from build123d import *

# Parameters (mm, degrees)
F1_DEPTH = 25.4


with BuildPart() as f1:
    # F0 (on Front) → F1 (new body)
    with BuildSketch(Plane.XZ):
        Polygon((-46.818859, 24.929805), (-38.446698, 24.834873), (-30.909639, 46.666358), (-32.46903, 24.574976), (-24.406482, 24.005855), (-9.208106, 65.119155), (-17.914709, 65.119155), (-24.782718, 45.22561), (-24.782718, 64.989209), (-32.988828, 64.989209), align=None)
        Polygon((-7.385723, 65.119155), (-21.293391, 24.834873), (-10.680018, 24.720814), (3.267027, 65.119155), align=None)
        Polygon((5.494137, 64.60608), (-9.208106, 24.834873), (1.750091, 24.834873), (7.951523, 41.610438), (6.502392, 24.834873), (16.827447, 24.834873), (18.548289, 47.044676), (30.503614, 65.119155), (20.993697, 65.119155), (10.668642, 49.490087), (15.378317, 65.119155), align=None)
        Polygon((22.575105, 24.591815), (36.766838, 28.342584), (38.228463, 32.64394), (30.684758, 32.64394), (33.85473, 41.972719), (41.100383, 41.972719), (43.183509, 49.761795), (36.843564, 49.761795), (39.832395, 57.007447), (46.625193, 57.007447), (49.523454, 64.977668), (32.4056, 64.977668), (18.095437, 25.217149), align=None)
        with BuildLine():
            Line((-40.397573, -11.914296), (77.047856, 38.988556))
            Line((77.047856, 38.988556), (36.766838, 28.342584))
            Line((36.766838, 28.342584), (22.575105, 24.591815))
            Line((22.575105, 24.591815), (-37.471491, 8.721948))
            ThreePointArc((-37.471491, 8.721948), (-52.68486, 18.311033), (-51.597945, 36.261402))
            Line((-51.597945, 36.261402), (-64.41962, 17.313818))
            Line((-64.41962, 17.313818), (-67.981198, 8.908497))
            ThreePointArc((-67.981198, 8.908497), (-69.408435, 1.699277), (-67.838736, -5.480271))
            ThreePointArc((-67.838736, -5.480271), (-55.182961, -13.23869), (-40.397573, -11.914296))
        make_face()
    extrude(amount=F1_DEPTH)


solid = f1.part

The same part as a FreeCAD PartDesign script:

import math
import FreeCAD as App
import Part
import Sketcher
Q = App.Units.Quantity

doc = App.newDocument("Part")
params = doc.addObject("Spreadsheet::Sheet", "Params")
for row, (alias, value) in enumerate([
    ("sketch1_radius", "0.695 in"),
    ("pad1_length", "1 in"),
], start=1):
    params.set(f"A{row}", alias)
    params.set(f"B{row}", "=" + value)
    params.setAlias(f"B{row}", alias)

body = doc.addObject("PartDesign::Body", "Body")
body.AllowCompound = True

sketch1 = body.newObject("Sketcher::SketchObject", "Sketch")
sketch1.AttachmentSupport = (doc.getObject("XZ_Plane"), [""])
sketch1.MapMode = "FlatFace"
sketch1.addGeometry(Part.LineSegment(App.Vector(-46.8, 24.9, 0), App.Vector(-38.4, 24.8, 0)), False)
sketch1.addGeometry(Part.LineSegment(App.Vector(-38.4, 24.8, 0), App.Vector(-30.9, 46.7, 0)), False)
sketch1.addGeometry(Part.LineSegment(App.Vector(-30.9, 46.7, 0), App.Vector(-32.5, 24.6, 0)), False)
sketch1.addGeometry(Part.LineSegment(App.Vector(-32.5, 24.6, 0), App.Vector(-24.4, 24, 0)), False)
sketch1.addGeometry(Part.LineSegment(App.Vector(-24.4, 24, 0), App.Vector(-9.2, 65.1, 0)), False)
sketch1.addGeometry(Part.LineSegment(App.Vector(-9.2, 65.1, 0), App.Vector(-17.9, 65.1, 0)), False)
sketch1.addGeometry(Part.LineSegment(App.Vector(-17.9, 65.1, 0), App.Vector(-24.8, 45.2, 0)), False)
sketch1.addGeometry(Part.LineSegment(App.Vector(-24.8, 45.2, 0), App.Vector(-24.8, 65, 0)), False)
sketch1.addGeometry(Part.LineSegment(App.Vector(-24.8, 65, 0), App.Vector(-33, 65, 0)), False)
sketch1.addGeometry(Part.LineSegment(App.Vector(-33, 65, 0), App.Vector(-46.8, 24.9, 0)), False)
sketch1.addGeometry(Part.LineSegment(App.Vector(-7.4, 65.1, 0), App.Vector(-21.3, 24.8, 0)), False)
sketch1.addGeometry(Part.LineSegment(App.Vector(-21.3, 24.8, 0), App.Vector(-10.7, 24.7, 0)), False)
sketch1.addGeometry(Part.LineSegment(App.Vector(-10.7, 24.7, 0), App.Vector(3.3, 65.1, 0)), False)
sketch1.addGeometry(Part.LineSegment(App.Vector(3.3, 65.1, 0), App.Vector(-7.4, 65.1, 0)), False)
sketch1.addGeometry(Part.LineSegment(App.Vector(5.5, 64.6, 0), App.Vector(-9.2, 24.8, 0)), False)
sketch1.addGeometry(Part.LineSegment(App.Vector(-9.2, 24.8, 0), App.Vector(1.8, 24.8, 0)), False)
sketch1.addGeometry(Part.LineSegment(App.Vector(1.8, 24.8, 0), App.Vector(8, 41.6, 0)), False)
sketch1.addGeometry(Part.LineSegment(App.Vector(8, 41.6, 0), App.Vector(6.5, 24.8, 0)), False)
sketch1.addGeometry(Part.LineSegment(App.Vector(6.5, 24.8, 0), App.Vector(16.8, 24.8, 0)), False)
sketch1.addGeometry(Part.LineSegment(App.Vector(16.8, 24.8, 0), App.Vector(18.5, 47, 0)), False)
sketch1.addGeometry(Part.LineSegment(App.Vector(18.5, 47, 0), App.Vector(30.5, 65.1, 0)), False)
sketch1.addGeometry(Part.LineSegment(App.Vector(30.5, 65.1, 0), App.Vector(21, 65.1, 0)), False)
sketch1.addGeometry(Part.LineSegment(App.Vector(21, 65.1, 0), App.Vector(10.7, 49.5, 0)), False)
sketch1.addGeometry(Part.LineSegment(App.Vector(10.7, 49.5, 0), App.Vector(15.4, 65.1, 0)), False)
sketch1.addGeometry(Part.LineSegment(App.Vector(15.4, 65.1, 0), App.Vector(5.5, 64.6, 0)), False)
sketch1.addGeometry(Part.LineSegment(App.Vector(36.8, 28.3, 0), App.Vector(38.2, 32.6, 0)), False)
sketch1.addGeometry(Part.LineSegment(App.Vector(38.2, 32.6, 0), App.Vector(30.7, 32.6, 0)), False)
sketch1.addGeometry(Part.LineSegment(App.Vector(30.7, 32.6, 0), App.Vector(33.9, 42, 0)), False)
sketch1.addGeometry(Part.LineSegment(App.Vector(33.9, 42, 0), App.Vector(41.1, 42, 0)), False)
sketch1.addGeometry(Part.LineSegment(App.Vector(41.1, 42, 0), App.Vector(43.2, 49.8, 0)), False)
sketch1.addGeometry(Part.LineSegment(App.Vector(43.2, 49.8, 0), App.Vector(36.8, 49.8, 0)), False)
sketch1.addGeometry(Part.LineSegment(App.Vector(36.8, 49.8, 0), App.Vector(39.8, 57, 0)), False)
sketch1.addGeometry(Part.LineSegment(App.Vector(39.8, 57, 0), App.Vector(46.6, 57, 0)), False)
sketch1.addGeometry(Part.LineSegment(App.Vector(46.6, 57, 0), App.Vector(49.5, 65, 0)), False)
sketch1.addGeometry(Part.LineSegment(App.Vector(49.5, 65, 0), App.Vector(32.4, 65, 0)), False)
sketch1.addGeometry(Part.LineSegment(App.Vector(32.4, 65, 0), App.Vector(18.1, 25.2, 0)), False)
sketch1.addGeometry(Part.LineSegment(App.Vector(18.1, 25.2, 0), App.Vector(22.6, 24.6, 0)), False)
sketch1.addGeometry(Part.LineSegment(App.Vector(22.6, 24.6, 0), App.Vector(-37.5, 8.7, 0)), False)
sketch1.addGeometry(Part.ArcOfCircle(Part.Circle(App.Vector(-37, 26.4, 0), App.Vector(0, 0, 1), 17.7), math.radians(146), math.radians(268)), False)
sketch1.addGeometry(Part.LineSegment(App.Vector(-51.6, 36.3, 0), App.Vector(-64.4, 17.3, 0)), False)
sketch1.addGeometry(Part.LineSegment(App.Vector(-64.4, 17.3, 0), App.Vector(-68, 8.9, 0)), False)
sketch1.addGeometry(Part.ArcOfCircle(Part.Circle(App.Vector(-51.4, 1.9, 0), App.Vector(0, 0, 1), 18), math.radians(157), math.radians(204)), False)
sketch1.addGeometry(Part.ArcOfCircle(Part.Circle(App.Vector(-49.8, 9.8, 0), App.Vector(0, 0, 1), 23.6), math.radians(-140), math.radians(-67)), False)
sketch1.addGeometry(Part.LineSegment(App.Vector(-40.4, -11.9, 0), App.Vector(77, 39, 0)), False)
sketch1.addGeometry(Part.LineSegment(App.Vector(77, 39, 0), App.Vector(36.8, 28.3, 0)), False)
sketch1.addConstraint(Sketcher.Constraint("Coincident", 0, 2, 1, 1))
sketch1.addConstraint(Sketcher.Constraint("Coincident", 1, 2, 2, 1))
sketch1.addConstraint(Sketcher.Constraint("Coincident", 2, 2, 3, 1))
sketch1.addConstraint(Sketcher.Constraint("Coincident", 3, 2, 4, 1))
sketch1.addConstraint(Sketcher.Constraint("Coincident", 4, 2, 5, 1))
sketch1.addConstraint(Sketcher.Constraint("Coincident", 5, 2, 6, 1))
sketch1.addConstraint(Sketcher.Constraint("Coincident", 6, 2, 7, 1))
sketch1.addConstraint(Sketcher.Constraint("Coincident", 7, 2, 8, 1))
sketch1.addConstraint(Sketcher.Constraint("Coincident", 8, 2, 9, 1))
sketch1.addConstraint(Sketcher.Constraint("Coincident", 9, 2, 0, 1))
sketch1.addConstraint(Sketcher.Constraint("Coincident", 10, 2, 11, 1))
sketch1.addConstraint(Sketcher.Constraint("Coincident", 11, 2, 12, 1))
sketch1.addConstraint(Sketcher.Constraint("Coincident", 12, 2, 13, 1))
sketch1.addConstraint(Sketcher.Constraint("Coincident", 13, 2, 10, 1))
sketch1.addConstraint(Sketcher.Constraint("Coincident", 14, 2, 15, 1))
sketch1.addConstraint(Sketcher.Constraint("Coincident", 15, 2, 16, 1))
sketch1.addConstraint(Sketcher.Constraint("Coincident", 16, 2, 17, 1))
sketch1.addConstraint(Sketcher.Constraint("Coincident", 17, 2, 18, 1))
sketch1.addConstraint(Sketcher.Constraint("Coincident", 18, 2, 19, 1))
sketch1.addConstraint(Sketcher.Constraint("Coincident", 19, 2, 20, 1))
sketch1.addConstraint(Sketcher.Constraint("Coincident", 20, 2, 21, 1))
sketch1.addConstraint(Sketcher.Constraint("Coincident", 21, 2, 22, 1))
sketch1.addConstraint(Sketcher.Constraint("Coincident", 22, 2, 23, 1))
sketch1.addConstraint(Sketcher.Constraint("Coincident", 23, 2, 24, 1))
sketch1.addConstraint(Sketcher.Constraint("Coincident", 24, 2, 14, 1))
sketch1.addConstraint(Sketcher.Constraint("Coincident", 25, 2, 26, 1))
sketch1.addConstraint(Sketcher.Constraint("Coincident", 26, 2, 27, 1))
sketch1.addConstraint(Sketcher.Constraint("Coincident", 27, 2, 28, 1))
sketch1.addConstraint(Sketcher.Constraint("Coincident", 28, 2, 29, 1))
sketch1.addConstraint(Sketcher.Constraint("Coincident", 29, 2, 30, 1))
sketch1.addConstraint(Sketcher.Constraint("Coincident", 30, 2, 31, 1))
sketch1.addConstraint(Sketcher.Constraint("Coincident", 31, 2, 32, 1))
sketch1.addConstraint(Sketcher.Constraint("Coincident", 32, 2, 33, 1))
sketch1.addConstraint(Sketcher.Constraint("Coincident", 33, 2, 34, 1))
sketch1.addConstraint(Sketcher.Constraint("Coincident", 34, 2, 35, 1))
sketch1.addConstraint(Sketcher.Constraint("Coincident", 35, 2, 36, 1))
sketch1.addConstraint(Sketcher.Constraint("Coincident", 36, 2, 37, 1))
sketch1.addConstraint(Sketcher.Constraint("Coincident", 37, 2, 38, 2))
sketch1.addConstraint(Sketcher.Constraint("Tangent", 38, 1, 39, 1))
sketch1.addConstraint(Sketcher.Constraint("Coincident", 39, 2, 40, 1))
sketch1.addConstraint(Sketcher.Constraint("Tangent", 40, 2, 41, 1))
sketch1.addConstraint(Sketcher.Constraint("Coincident", 41, 2, 42, 1))
sketch1.addConstraint(Sketcher.Constraint("Tangent", 42, 2, 43, 1))
sketch1.addConstraint(Sketcher.Constraint("Coincident", 43, 2, 44, 1))
sketch1.addConstraint(Sketcher.Constraint("Coincident", 44, 2, 25, 1))
sketch1.addConstraint(Sketcher.Constraint("Horizontal", 5))
sketch1.addConstraint(Sketcher.Constraint("Vertical", 7))
sketch1.addConstraint(Sketcher.Constraint("Horizontal", 8))
sketch1.addConstraint(Sketcher.Constraint("Horizontal", 13))
sketch1.addConstraint(Sketcher.Constraint("Horizontal", 15))
sketch1.addConstraint(Sketcher.Constraint("Horizontal", 18))
sketch1.addConstraint(Sketcher.Constraint("Horizontal", 21))
sketch1.addConstraint(Sketcher.Constraint("Horizontal", 26))
sketch1.addConstraint(Sketcher.Constraint("Horizontal", 28))
sketch1.addConstraint(Sketcher.Constraint("Horizontal", 30))
sketch1.addConstraint(Sketcher.Constraint("Horizontal", 32))
sketch1.addConstraint(Sketcher.Constraint("Horizontal", 34))
sketch1.addConstraint(Sketcher.Constraint("Perpendicular", 2, 3))
sketch1.addConstraint(Sketcher.Constraint("Parallel", 1, 6))
sketch1.addConstraint(Sketcher.Constraint("Parallel", 6, 9))
sketch1.addConstraint(Sketcher.Constraint("Parallel", 9, 10))
sketch1.addConstraint(Sketcher.Constraint("Parallel", 10, 12))
sketch1.addConstraint(Sketcher.Constraint("Parallel", 4, 14))
sketch1.addConstraint(Sketcher.Constraint("Parallel", 14, 16))
sketch1.addConstraint(Sketcher.Constraint("Parallel", 25, 27))
sketch1.addConstraint(Sketcher.Constraint("Parallel", 37, 44))
sketch1.addConstraint(Sketcher.Constraint("Horizontal", 0, 2, 10, 2))
sketch1.addConstraint(Sketcher.Constraint("Horizontal", 5, 2, 12, 2))
sketch1.addConstraint(Sketcher.Constraint("Horizontal", 10, 2, 14, 2))
sketch1.addConstraint(Sketcher.Constraint("Horizontal", 15, 2, 17, 2))
sketch1.addConstraint(Sketcher.Constraint("Horizontal", 13, 2, 20, 2))
sketch1.addConstraint(Sketcher.Constraint("Horizontal", 21, 2, 23, 2))
sketch1.addConstraint(Sketcher.Constraint("Vertical", 4, 2, 14, 2))
sketch1.addConstraint(Sketcher.Constraint("Radius", 38, Q("0.695 in")))
sketch1.addConstraint(Sketcher.Constraint("Angle", 22, Q("-123.450008 deg")))
sketch1.addConstraint(Sketcher.Constraint("Radius", 41, Q("18.02081 mm")))
sketch1.addConstraint(Sketcher.Constraint("Radius", 42, Q("23.620811 mm")))
sketch1.addConstraint(Sketcher.Constraint("Distance", 27, Q("0.3878999 in")))
sketch1.addConstraint(Sketcher.Constraint("Distance", 40, Q("0.3594 in")))
sketch1.addConstraint(Sketcher.Constraint("DistanceX", 32, 1, 32, 2, Q("6.792798 mm")))
sketch1.addConstraint(Sketcher.Constraint("DistanceY", 7, 1, 7, 2, Q("19.763599 mm")))
sketch1.addConstraint(Sketcher.Constraint("DistanceX", 13, 2, 21, 2, Q("1.1173 in")))
sketch1.addConstraint(Sketcher.Constraint("DistanceY", 24, 2, 12, 2, Q("0.0201998 in")))
sketch1.addConstraint(Sketcher.Constraint("DistanceX", 42, 2, 37, 2, Q("0.1152001 in")))
sketch1.addConstraint(Sketcher.Constraint("Distance", 0, Q("8.372699 mm")))
sketch1.addConstraint(Sketcher.Constraint("Distance", 44, Q("41.664099 mm")))
sketch1.addConstraint(Sketcher.Constraint("DistanceX", 8, 2, 8, 1, Q("8.20611 mm")))
sketch1.addConstraint(Sketcher.Constraint("DistanceX", 13, 2, 13, 1, Q("10.65275 mm")))
sketch1.addConstraint(Sketcher.Constraint("DistanceX", -1, 1, 34, 2, Q("32.4056 mm")))
sketch1.addConstraint(Sketcher.Constraint("DistanceX", 40, 2, -1, 1, Q("67.981198 mm")))
sketch1.addConstraint(Sketcher.Constraint("DistanceX", 41, 3, 42, 3, Q("1.597599 mm")))
sketch1.addConstraint(Sketcher.Constraint("DistanceY", 3, 2, 4, 2, Q("41.1133 mm")))
sketch1.addConstraint(Sketcher.Constraint("DistanceX", 9, 2, 38, 3, Q("9.8411 mm")))
sketch1.addConstraint(Sketcher.Constraint("DistanceX", 6, 2, 11, 2, Q("14.1027 mm")))
sketch1.addConstraint(Sketcher.Constraint("DistanceX", 15, 2, 17, 2, Q("4.752301 mm")))
sketch1.addConstraint(Sketcher.Constraint("DistanceX", 14, 2, 17, 2, Q("15.710498 mm")))
sketch1.addConstraint(Sketcher.Constraint("DistanceY", 25, 2, 16, 2, Q("8.966498 mm")))
sketch1.addConstraint(Sketcher.Constraint("DistanceX", 30, 2, 25, 2, Q("1.384899 mm")))
sketch1.addConstraint(Sketcher.Constraint("DistanceX", 33, 2, 43, 2, Q("27.524402 mm")))
sketch1.addConstraint(Sketcher.Constraint("Distance", 1, Q("23.095909 mm")))
sketch1.addConstraint(Sketcher.Constraint("Distance", 2, Q("22.146351 mm")))
sketch1.addConstraint(Sketcher.Constraint("Distance", 3, Q("8.08261 mm")))
sketch1.addConstraint(Sketcher.Constraint("Distance", 4, Q("43.832569 mm")))
sketch1.addConstraint(Sketcher.Constraint("Distance", 6, Q("21.045728 mm")))
sketch1.addConstraint(Sketcher.Constraint("Distance", 12, Q("42.73811 mm")))
sketch1.addConstraint(Sketcher.Constraint("Distance", 14, Q("42.401708 mm")))
sketch1.addConstraint(Sketcher.Constraint("Distance", 17, Q("16.838039 mm")))
sketch1.addConstraint(Sketcher.Constraint("Distance", 19, Q("22.27637 mm")))
sketch1.addConstraint(Sketcher.Constraint("Distance", 20, Q("21.670639 mm")))
sketch1.addConstraint(Sketcher.Constraint("Distance", 23, Q("16.32326 mm")))
sketch1.addConstraint(Sketcher.Constraint("Distance", 33, Q("8.480822 mm")))
sketch1.addConstraint(Sketcher.Constraint("DistanceX", 5, 2, 5, 1, Q("8.706603 mm")))
sketch1.addConstraint(Sketcher.Constraint("DistanceX", 18, 1, 18, 2, Q("10.325055 mm")))
sketch1.addConstraint(Sketcher.Constraint("DistanceX", 21, 2, 21, 1, Q("9.509917 mm")))
sketch1.addConstraint(Sketcher.Constraint("DistanceX", 26, 2, 26, 1, Q("7.543705 mm")))
sketch1.addConstraint(Sketcher.Constraint("DistanceX", 28, 1, 28, 2, Q("7.245653 mm")))
sketch1.addConstraint(Sketcher.Constraint("DistanceX", 30, 2, 30, 1, Q("6.339945 mm")))
sketch1.addConstraint(Sketcher.Constraint("DistanceX", 34, 2, 34, 1, Q("17.117854 mm")))
sketch1.addConstraint(Sketcher.Constraint("DistanceX", 38, 3, -1, 1, Q("36.977759 mm")))
sketch1.addConstraint(Sketcher.Constraint("DistanceY", -1, 1, 38, 3, Q("26.368042 mm")))
sketch1.addConstraint(Sketcher.Constraint("DistanceX", 41, 3, -1, 1, Q("51.388508 mm")))
sketch1.addConstraint(Sketcher.Constraint("DistanceY", -1, 1, 41, 3, Q("1.877691 mm")))
sketch1.addConstraint(Sketcher.Constraint("DistanceY", -1, 1, 42, 3, Q("9.758451 mm")))
sketch1.addConstraint(Sketcher.Constraint("DistanceX", 1, 2, -1, 1, Q("30.909639 mm")))
sketch1.addConstraint(Sketcher.Constraint("DistanceY", -1, 1, 1, 2, Q("46.666358 mm")))
sketch1.addConstraint(Sketcher.Constraint("DistanceX", -1, 1, 27, 2, Q("33.85473 mm")))
sketch1.addConstraint(Sketcher.Constraint("DistanceY", -1, 1, 27, 2, Q("41.972719 mm")))
sketch1.addConstraint(Sketcher.Constraint("DistanceY", -1, 1, 35, 2, Q("25.217149 mm")))
sketch1.addConstraint(Sketcher.Constraint("DistanceX", 37, 2, -1, 1, Q("37.471491 mm")))
sketch1.addConstraint(Sketcher.Constraint("DistanceY", 19, 2, 22, 2, Q("2.445411 mm")))
sketch1.addConstraint(Sketcher.Constraint("DistanceY", 29, 2, 20, 2, Q("15.35736 mm")))
sketch1.addConstraint(Sketcher.Constraint("DistanceX", 30, 2, 31, 2, Q("2.988831 mm")))
sketch1.addConstraint(Sketcher.Constraint("DistanceY", 30, 2, 31, 2, Q("7.245652 mm")))
sketch1.addConstraint(Sketcher.Constraint("DistanceX", 18, 2, 35, 2, Q("1.26799 mm")))
sketch1.addConstraint(Sketcher.Constraint("DistanceX", 35, 2, 36, 2, Q("4.479668 mm")))
sketch1.setExpression("Constraints[73]", "Params.sketch1_radius")
pad1 = body.newObject("PartDesign::Pad", "Pad")
pad1.Profile = sketch1
pad1.setExpression("Length", "Params.pad1_length")

doc.recompute()
